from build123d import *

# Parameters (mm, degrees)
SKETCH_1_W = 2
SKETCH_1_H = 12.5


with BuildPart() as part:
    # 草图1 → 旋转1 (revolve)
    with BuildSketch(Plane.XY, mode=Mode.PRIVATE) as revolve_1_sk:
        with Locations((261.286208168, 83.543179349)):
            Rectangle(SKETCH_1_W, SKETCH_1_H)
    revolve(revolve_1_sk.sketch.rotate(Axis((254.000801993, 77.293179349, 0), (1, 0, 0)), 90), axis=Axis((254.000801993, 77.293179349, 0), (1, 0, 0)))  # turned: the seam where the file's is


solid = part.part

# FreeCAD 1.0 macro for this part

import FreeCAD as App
import Part
import Sketcher
from FreeCAD import Vector
Q = App.Units.Quantity


def add_polygon(sketch, points):
    """Adds a closed chain of lines whose ends are joined by coincident constraints."""
    first, n = sketch.GeometryCount, len(points)
    for a, b in zip(points, points[1:] + points[:1]):
        sketch.addGeometry(Part.LineSegment(App.Vector(*a, 0), App.Vector(*b, 0)), False)
    for i in range(n):
        sketch.addConstraint(Sketcher.Constraint("Coincident", first + i, 2, first + (i + 1) % n, 1))

doc = App.newDocument("Part")
params = doc.addObject("Spreadsheet::Sheet", "Params")
for row, (alias, value) in enumerate([
    ("sketch1_width", "2 mm"),
    ("sketch1_height", "12.5 mm"),
    ("revolution_angle", "360 deg"),
], start=1):
    params.set(f"A{row}", alias)
    params.set(f"B{row}", "=" + value)
    params.setAlias(f"B{row}", alias)

body = doc.addObject("PartDesign::Body", "Body")

# Sketch on XY plane
sketch1 = body.newObject("Sketcher::SketchObject", "Sketch")
sketch1.AttachmentSupport = (doc.getObject("XY_Plane"), [""])
sketch1.MapMode = "FlatFace"
add_polygon(sketch1, [(260.3, 89.8), (260.3, 77.3), (262.3, 77.3), (262.3, 89.8)])  # lines 0-3
sketch1.addGeometry(Part.LineSegment(Vector(260.3, 77.3, 0), Vector(262.3, 77.3, 0)), True)  # axis
sketch1.addConstraint([
    Sketcher.Constraint("Vertical", 0),
    Sketcher.Constraint("Horizontal", 1),
    Sketcher.Constraint("Vertical", 2),
    Sketcher.Constraint("Horizontal", 3),
    Sketcher.Constraint("Horizontal", 4),
    Sketcher.Constraint("Coincident", 4, 1, 0, 2),
    Sketcher.Constraint("Vertical", 2, 2, 4, 2),
    Sketcher.Constraint("DistanceX", 1, 1, 1, 2, Q("2 mm")),
    Sketcher.Constraint("DistanceY", 0, 2, 0, 1, Q("12.5 mm")),
    Sketcher.Constraint("DistanceX", -1, 1, 0, 2, Q("260.286208 mm")),
    Sketcher.Constraint("DistanceY", -1, 1, 0, 2, Q("77.293179 mm")),
])
sketch1.setExpression("Constraints[11]", "Params.sketch1_width")
sketch1.setExpression("Constraints[12]", "Params.sketch1_height")
revolution = body.newObject("PartDesign::Revolution", "Revolution")
revolution.Profile = sketch1
revolution.ReferenceAxis = (sketch1, ["Axis0"])
revolution.setExpression("Angle", "Params.revolution_angle")

doc.recompute()
